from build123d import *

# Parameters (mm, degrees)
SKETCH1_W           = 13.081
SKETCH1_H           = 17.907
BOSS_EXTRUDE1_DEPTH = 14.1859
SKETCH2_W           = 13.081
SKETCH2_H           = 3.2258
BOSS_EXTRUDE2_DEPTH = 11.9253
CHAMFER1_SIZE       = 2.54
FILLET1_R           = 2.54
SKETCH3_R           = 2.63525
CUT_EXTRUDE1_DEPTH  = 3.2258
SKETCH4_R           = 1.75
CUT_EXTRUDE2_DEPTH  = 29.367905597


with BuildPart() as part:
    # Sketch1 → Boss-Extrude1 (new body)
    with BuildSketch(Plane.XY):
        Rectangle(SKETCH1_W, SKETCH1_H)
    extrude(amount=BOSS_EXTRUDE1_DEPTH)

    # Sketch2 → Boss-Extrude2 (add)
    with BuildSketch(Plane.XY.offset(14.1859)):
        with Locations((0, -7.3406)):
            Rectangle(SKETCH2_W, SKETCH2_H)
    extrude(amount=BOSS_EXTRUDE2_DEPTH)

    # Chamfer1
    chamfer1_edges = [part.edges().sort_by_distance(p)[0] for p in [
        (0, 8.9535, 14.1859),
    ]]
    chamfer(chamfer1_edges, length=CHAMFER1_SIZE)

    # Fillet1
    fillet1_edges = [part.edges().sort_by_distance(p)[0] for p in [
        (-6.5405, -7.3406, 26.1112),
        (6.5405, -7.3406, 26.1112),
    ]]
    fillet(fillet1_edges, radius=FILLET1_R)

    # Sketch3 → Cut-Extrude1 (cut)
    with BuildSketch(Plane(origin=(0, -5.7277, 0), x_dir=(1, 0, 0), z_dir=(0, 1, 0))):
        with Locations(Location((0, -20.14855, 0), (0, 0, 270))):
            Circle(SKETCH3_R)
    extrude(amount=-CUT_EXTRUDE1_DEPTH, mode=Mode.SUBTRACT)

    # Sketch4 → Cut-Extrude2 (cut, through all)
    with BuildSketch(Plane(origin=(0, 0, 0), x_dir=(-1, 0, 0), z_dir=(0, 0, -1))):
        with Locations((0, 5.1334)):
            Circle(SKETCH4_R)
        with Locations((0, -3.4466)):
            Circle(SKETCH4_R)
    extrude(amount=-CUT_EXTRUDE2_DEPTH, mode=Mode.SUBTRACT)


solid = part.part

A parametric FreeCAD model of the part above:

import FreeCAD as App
import Part
import Sketcher

V = App.Vector
Q = App.Units.Quantity


def edges_at(feature, points):
    """Names of the edges that pass closest to the given points."""
    edges = feature.Shape.Edges
    near = lambda p: min(range(len(edges)), key=lambda i: edges[i].distToShape(Part.Vertex(*p))[0])
    return sorted({f"Edge{near(p) + 1}" for p in points})


def add_polygon(sketch, points):
    """Adds a closed chain of lines whose ends are joined by coincident constraints."""
    first, n = sketch.GeometryCount, len(points)
    for a, b in zip(points, points[1:] + points[:1]):
        sketch.addGeometry(Part.LineSegment(App.Vector(*a, 0), App.Vector(*b, 0)), False)
    for i in range(n):
        sketch.addConstraint(Sketcher.Constraint("Coincident", first + i, 2, first + (i + 1) % n, 1))

doc = App.newDocument("Part")
body = doc.addObject("PartDesign::Body", "Body")

sketch1 = doc.addObject("Sketcher::SketchObject", "Sketch")
body.addObject(sketch1)
sketch1.AttachmentSupport = (doc.XY_Plane, [""])
sketch1.MapMode = "FlatFace"
add_polygon(sketch1, [(-7, 9), (-7, -9), (7, -9), (7, 9)])
sketch1.addConstraint(Sketcher.Constraint("Vertical", 0))
sketch1.addConstraint(Sketcher.Constraint("Horizontal", 1))
sketch1.addConstraint(Sketcher.Constraint("Vertical", 2))
sketch1.addConstraint(Sketcher.Constraint("Horizontal", 3))
sketch1.addConstraint(Sketcher.Constraint("Symmetric", 0, 2, 2, 2, -1, 1))
sketch1.addConstraint(Sketcher.Constraint("DistanceX", 1, 1, 1, 2, Q("0.515 in")))
sketch1.addConstraint(Sketcher.Constraint("DistanceY", 0, 2, 0, 1, Q("0.705 in")))
pad1 = doc.addObject("PartDesign::Pad", "Pad")
body.addObject(pad1)
pad1.Profile = sketch1
pad1.Length = Q("0.5585 in")

sketch2 = doc.addObject("Sketcher::SketchObject", "Sketch001")
body.addObject(sketch2)
sketch2.AttachmentSupport = (doc.XY_Plane, [""])
sketch2.MapMode = "FlatFace"
sketch2.AttachmentOffset = App.Placement(V(0, 0, 0.5585 * 25.4), App.Rotation())
add_polygon(sketch2, [(-6.5, -5.7), (-6.5, -9), (6.5, -9), (6.5, -5.7)])
sketch2.addConstraint(Sketcher.Constraint("Vertical", 0))
sketch2.addConstraint(Sketcher.Constraint("Horizontal", 1))
sketch2.addConstraint(Sketcher.Constraint("Vertical", 2))
sketch2.addConstraint(Sketcher.Constraint("Horizontal", 3))
sketch2.addConstraint(Sketcher.Constraint("DistanceX", 1, 1, 1, 2, Q("0.515 in")))
sketch2.addConstraint(Sketcher.Constraint("DistanceY", 0, 2, 0, 1, Q("0.127 in")))
sketch2.addConstraint(Sketcher.Constraint("DistanceX", 0, 2, -1, 1, Q("0.2575 in")))
sketch2.addConstraint(Sketcher.Constraint("DistanceY", 0, 2, -1, 1, Q("0.3525 in")))
pad2 = doc.addObject("PartDesign::Pad", "Pad001")
body.addObject(pad2)
pad2.Profile = sketch2
pad2.Length = Q("0.4695 in")
doc.recompute()

chamfer = doc.addObject("PartDesign::Chamfer", "Chamfer")
body.addObject(chamfer)
chamfer.Base = (pad2, edges_at(pad2, [(0, 8.954, 14.186)]))
chamfer.Size = Q("0.1 in")
doc.recompute()

fillet = doc.addObject("PartDesign::Fillet", "Fillet")
body.addObject(fillet)
fillet.Base = (chamfer, edges_at(chamfer, [(-6.54, -7.341, 26.111), (6.54, -7.341, 26.111)]))
fillet.Radius = Q("0.1 in")

sketch3 = doc.addObject("Sketcher::SketchObject", "Sketch002")
body.addObject(sketch3)
sketch3.AttachmentSupport = (doc.XZ_Plane, [""])
sketch3.MapMode = "FlatFace"
sketch3.AttachmentOffset = App.Placement(V(0, 0, 0.2255 * 25.4), App.Rotation())
sketch3.addGeometry(Part.Circle(V(0, 20.1, 0), V(0, 0, 1), 2.6), False)
sketch3.addConstraint(Sketcher.Constraint("PointOnObject", 0, 3, -2))
sketch3.addConstraint(Sketcher.Constraint("Diameter", 0, Q("0.2075 in")))
sketch3.addConstraint(Sketcher.Constraint("DistanceY", -1, 1, 0, 3, Q("20.14855 mm")))
pocket1 = doc.addObject("PartDesign::Pocket", "Pocket")
body.addObject(pocket1)
pocket1.Profile = sketch3
pocket1.Length = Q("0.127 in")
pocket1.Reversed = True

sketch4 = doc.addObject("Sketcher::SketchObject", "Sketch003")
body.addObject(sketch4)
sketch4.AttachmentSupport = (doc.XY_Plane, [""])
sketch4.MapMode = "FlatFace"
sketch4.addGeometry(Part.Circle(V(0, 5.1, 0), V(0, 0, 1), 1.8), False)
sketch4.addGeometry(Part.Circle(V(0, -3.4, 0), V(0, 0, 1), 1.8), False)
sketch4.addConstraint(Sketcher.Constraint("Equal", 0, 1))
sketch4.addConstraint(Sketcher.Constraint("PointOnObject", 0, 3, -2))
sketch4.addConstraint(Sketcher.Constraint("PointOnObject", 1, 3, -2))
sketch4.addConstraint(Sketcher.Constraint("Diameter", 0, Q("3.5 mm")))
sketch4.addConstraint(Sketcher.Constraint("DistanceY", -1, 1, 0, 3, Q("5.1334 mm")))
sketch4.addConstraint(Sketcher.Constraint("DistanceY", 1, 3, -1, 1, Q("3.4466 mm")))
pocket2 = doc.addObject("PartDesign::Pocket", "Pocket001")
body.addObject(pocket2)
pocket2.Profile = sketch4
pocket2.Type = "ThroughAll"
pocket2.Reversed = True

doc.recompute()
